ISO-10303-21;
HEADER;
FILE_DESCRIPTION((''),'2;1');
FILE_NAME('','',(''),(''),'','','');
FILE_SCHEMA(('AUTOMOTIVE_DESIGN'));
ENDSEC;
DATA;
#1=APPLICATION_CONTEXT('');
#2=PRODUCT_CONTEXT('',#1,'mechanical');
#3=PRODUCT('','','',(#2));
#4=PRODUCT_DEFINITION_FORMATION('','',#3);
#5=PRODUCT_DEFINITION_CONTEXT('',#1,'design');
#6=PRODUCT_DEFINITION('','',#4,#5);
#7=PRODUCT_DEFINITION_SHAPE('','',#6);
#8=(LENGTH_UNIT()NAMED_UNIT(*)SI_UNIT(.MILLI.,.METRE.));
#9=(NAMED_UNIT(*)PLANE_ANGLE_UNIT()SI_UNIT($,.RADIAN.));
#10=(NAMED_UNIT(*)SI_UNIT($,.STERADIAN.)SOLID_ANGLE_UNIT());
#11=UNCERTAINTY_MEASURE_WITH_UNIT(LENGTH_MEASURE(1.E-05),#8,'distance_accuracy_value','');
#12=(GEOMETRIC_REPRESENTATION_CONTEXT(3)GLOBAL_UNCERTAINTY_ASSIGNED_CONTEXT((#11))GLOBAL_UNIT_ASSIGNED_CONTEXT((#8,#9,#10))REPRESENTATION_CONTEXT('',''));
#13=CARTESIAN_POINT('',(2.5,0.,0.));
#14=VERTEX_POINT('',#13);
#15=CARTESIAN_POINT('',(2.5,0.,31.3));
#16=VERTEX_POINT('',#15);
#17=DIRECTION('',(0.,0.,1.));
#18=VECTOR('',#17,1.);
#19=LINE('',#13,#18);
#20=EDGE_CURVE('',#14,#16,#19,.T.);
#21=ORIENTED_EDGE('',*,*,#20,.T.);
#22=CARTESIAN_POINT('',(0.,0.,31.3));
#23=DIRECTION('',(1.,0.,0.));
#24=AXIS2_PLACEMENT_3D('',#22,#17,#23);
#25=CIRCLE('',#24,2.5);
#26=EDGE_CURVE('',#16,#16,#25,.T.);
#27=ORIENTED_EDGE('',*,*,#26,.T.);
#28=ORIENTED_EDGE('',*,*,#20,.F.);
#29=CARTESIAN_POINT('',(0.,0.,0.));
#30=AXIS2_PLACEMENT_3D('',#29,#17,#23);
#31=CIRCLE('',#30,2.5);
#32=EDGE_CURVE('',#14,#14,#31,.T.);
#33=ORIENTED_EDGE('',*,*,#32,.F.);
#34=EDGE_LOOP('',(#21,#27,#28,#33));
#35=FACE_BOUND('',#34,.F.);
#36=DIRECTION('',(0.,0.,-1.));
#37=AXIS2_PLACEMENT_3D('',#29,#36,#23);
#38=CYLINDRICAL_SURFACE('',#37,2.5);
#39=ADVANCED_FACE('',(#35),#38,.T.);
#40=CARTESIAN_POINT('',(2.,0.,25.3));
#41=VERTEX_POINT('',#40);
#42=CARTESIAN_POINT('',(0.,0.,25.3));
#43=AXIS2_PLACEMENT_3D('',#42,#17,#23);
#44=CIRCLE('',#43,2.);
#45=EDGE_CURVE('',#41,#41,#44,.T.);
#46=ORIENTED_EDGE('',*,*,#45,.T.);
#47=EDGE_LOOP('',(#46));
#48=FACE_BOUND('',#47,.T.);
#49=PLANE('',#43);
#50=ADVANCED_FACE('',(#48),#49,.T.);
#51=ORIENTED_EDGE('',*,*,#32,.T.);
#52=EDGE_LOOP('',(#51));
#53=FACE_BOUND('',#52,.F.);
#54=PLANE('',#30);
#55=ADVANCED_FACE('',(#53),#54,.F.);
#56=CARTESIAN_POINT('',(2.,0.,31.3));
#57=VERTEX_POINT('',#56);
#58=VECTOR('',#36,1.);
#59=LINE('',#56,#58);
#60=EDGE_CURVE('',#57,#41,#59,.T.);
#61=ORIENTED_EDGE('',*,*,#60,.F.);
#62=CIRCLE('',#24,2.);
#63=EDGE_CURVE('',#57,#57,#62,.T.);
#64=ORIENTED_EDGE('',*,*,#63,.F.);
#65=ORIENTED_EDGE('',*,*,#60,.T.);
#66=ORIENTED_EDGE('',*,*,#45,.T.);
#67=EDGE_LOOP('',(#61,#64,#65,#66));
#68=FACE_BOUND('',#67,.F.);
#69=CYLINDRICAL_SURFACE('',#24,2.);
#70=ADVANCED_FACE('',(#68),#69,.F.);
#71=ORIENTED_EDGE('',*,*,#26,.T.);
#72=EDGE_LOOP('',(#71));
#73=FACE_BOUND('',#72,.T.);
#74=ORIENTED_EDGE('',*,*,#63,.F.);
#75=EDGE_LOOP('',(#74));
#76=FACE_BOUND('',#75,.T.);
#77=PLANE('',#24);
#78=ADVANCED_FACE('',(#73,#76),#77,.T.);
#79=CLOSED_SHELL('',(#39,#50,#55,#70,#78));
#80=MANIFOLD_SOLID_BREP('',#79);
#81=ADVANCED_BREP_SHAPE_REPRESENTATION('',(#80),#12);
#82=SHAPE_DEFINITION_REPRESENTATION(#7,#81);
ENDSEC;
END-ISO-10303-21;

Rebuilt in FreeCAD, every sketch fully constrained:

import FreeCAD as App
import Part
import Sketcher
from FreeCAD import Vector
Q = App.Units.Quantity

doc = App.newDocument("Part")
body = doc.addObject("PartDesign::Body", "Body")

# Sketch on XY plane
sketch1 = body.newObject("Sketcher::SketchObject", "Sketch")
sketch1.AttachmentSupport = (doc.getObject("XY_Plane"), [""])
sketch1.MapMode = "FlatFace"
sketch1.addGeometry(Part.Circle(Vector(0, 0, 0), Vector(0, 0, 1), 2.5), False)
sketch1.addConstraint([
    Sketcher.Constraint("Coincident", 0, 3, -1, 1),
    Sketcher.Constraint("Diameter", 0, Q("5 mm")),
])
pad1 = body.newObject("PartDesign::Pad", "Pad")
pad1.Profile = sketch1
pad1.Length = 31.3

# Sketch on XY plane
sketch2 = body.newObject("Sketcher::SketchObject", "Sketch001")
sketch2.AttachmentSupport = (doc.getObject("XY_Plane"), [""])
sketch2.MapMode = "FlatFace"
sketch2.AttachmentOffset = App.Placement(Vector(0, 0, 31.3), App.Rotation())
sketch2.addGeometry(Part.Circle(Vector(0, 0, 0), Vector(0, 0, 1), 2), False)
sketch2.addConstraint([
    Sketcher.Constraint("Coincident", 0, 3, -1, 1),
    Sketcher.Constraint("Diameter", 0, Q("4 mm")),
])
pocket1 = body.newObject("PartDesign::Pocket", "Pocket")
pocket1.Profile = sketch2
pocket1.Length = 6

doc.recompute()
